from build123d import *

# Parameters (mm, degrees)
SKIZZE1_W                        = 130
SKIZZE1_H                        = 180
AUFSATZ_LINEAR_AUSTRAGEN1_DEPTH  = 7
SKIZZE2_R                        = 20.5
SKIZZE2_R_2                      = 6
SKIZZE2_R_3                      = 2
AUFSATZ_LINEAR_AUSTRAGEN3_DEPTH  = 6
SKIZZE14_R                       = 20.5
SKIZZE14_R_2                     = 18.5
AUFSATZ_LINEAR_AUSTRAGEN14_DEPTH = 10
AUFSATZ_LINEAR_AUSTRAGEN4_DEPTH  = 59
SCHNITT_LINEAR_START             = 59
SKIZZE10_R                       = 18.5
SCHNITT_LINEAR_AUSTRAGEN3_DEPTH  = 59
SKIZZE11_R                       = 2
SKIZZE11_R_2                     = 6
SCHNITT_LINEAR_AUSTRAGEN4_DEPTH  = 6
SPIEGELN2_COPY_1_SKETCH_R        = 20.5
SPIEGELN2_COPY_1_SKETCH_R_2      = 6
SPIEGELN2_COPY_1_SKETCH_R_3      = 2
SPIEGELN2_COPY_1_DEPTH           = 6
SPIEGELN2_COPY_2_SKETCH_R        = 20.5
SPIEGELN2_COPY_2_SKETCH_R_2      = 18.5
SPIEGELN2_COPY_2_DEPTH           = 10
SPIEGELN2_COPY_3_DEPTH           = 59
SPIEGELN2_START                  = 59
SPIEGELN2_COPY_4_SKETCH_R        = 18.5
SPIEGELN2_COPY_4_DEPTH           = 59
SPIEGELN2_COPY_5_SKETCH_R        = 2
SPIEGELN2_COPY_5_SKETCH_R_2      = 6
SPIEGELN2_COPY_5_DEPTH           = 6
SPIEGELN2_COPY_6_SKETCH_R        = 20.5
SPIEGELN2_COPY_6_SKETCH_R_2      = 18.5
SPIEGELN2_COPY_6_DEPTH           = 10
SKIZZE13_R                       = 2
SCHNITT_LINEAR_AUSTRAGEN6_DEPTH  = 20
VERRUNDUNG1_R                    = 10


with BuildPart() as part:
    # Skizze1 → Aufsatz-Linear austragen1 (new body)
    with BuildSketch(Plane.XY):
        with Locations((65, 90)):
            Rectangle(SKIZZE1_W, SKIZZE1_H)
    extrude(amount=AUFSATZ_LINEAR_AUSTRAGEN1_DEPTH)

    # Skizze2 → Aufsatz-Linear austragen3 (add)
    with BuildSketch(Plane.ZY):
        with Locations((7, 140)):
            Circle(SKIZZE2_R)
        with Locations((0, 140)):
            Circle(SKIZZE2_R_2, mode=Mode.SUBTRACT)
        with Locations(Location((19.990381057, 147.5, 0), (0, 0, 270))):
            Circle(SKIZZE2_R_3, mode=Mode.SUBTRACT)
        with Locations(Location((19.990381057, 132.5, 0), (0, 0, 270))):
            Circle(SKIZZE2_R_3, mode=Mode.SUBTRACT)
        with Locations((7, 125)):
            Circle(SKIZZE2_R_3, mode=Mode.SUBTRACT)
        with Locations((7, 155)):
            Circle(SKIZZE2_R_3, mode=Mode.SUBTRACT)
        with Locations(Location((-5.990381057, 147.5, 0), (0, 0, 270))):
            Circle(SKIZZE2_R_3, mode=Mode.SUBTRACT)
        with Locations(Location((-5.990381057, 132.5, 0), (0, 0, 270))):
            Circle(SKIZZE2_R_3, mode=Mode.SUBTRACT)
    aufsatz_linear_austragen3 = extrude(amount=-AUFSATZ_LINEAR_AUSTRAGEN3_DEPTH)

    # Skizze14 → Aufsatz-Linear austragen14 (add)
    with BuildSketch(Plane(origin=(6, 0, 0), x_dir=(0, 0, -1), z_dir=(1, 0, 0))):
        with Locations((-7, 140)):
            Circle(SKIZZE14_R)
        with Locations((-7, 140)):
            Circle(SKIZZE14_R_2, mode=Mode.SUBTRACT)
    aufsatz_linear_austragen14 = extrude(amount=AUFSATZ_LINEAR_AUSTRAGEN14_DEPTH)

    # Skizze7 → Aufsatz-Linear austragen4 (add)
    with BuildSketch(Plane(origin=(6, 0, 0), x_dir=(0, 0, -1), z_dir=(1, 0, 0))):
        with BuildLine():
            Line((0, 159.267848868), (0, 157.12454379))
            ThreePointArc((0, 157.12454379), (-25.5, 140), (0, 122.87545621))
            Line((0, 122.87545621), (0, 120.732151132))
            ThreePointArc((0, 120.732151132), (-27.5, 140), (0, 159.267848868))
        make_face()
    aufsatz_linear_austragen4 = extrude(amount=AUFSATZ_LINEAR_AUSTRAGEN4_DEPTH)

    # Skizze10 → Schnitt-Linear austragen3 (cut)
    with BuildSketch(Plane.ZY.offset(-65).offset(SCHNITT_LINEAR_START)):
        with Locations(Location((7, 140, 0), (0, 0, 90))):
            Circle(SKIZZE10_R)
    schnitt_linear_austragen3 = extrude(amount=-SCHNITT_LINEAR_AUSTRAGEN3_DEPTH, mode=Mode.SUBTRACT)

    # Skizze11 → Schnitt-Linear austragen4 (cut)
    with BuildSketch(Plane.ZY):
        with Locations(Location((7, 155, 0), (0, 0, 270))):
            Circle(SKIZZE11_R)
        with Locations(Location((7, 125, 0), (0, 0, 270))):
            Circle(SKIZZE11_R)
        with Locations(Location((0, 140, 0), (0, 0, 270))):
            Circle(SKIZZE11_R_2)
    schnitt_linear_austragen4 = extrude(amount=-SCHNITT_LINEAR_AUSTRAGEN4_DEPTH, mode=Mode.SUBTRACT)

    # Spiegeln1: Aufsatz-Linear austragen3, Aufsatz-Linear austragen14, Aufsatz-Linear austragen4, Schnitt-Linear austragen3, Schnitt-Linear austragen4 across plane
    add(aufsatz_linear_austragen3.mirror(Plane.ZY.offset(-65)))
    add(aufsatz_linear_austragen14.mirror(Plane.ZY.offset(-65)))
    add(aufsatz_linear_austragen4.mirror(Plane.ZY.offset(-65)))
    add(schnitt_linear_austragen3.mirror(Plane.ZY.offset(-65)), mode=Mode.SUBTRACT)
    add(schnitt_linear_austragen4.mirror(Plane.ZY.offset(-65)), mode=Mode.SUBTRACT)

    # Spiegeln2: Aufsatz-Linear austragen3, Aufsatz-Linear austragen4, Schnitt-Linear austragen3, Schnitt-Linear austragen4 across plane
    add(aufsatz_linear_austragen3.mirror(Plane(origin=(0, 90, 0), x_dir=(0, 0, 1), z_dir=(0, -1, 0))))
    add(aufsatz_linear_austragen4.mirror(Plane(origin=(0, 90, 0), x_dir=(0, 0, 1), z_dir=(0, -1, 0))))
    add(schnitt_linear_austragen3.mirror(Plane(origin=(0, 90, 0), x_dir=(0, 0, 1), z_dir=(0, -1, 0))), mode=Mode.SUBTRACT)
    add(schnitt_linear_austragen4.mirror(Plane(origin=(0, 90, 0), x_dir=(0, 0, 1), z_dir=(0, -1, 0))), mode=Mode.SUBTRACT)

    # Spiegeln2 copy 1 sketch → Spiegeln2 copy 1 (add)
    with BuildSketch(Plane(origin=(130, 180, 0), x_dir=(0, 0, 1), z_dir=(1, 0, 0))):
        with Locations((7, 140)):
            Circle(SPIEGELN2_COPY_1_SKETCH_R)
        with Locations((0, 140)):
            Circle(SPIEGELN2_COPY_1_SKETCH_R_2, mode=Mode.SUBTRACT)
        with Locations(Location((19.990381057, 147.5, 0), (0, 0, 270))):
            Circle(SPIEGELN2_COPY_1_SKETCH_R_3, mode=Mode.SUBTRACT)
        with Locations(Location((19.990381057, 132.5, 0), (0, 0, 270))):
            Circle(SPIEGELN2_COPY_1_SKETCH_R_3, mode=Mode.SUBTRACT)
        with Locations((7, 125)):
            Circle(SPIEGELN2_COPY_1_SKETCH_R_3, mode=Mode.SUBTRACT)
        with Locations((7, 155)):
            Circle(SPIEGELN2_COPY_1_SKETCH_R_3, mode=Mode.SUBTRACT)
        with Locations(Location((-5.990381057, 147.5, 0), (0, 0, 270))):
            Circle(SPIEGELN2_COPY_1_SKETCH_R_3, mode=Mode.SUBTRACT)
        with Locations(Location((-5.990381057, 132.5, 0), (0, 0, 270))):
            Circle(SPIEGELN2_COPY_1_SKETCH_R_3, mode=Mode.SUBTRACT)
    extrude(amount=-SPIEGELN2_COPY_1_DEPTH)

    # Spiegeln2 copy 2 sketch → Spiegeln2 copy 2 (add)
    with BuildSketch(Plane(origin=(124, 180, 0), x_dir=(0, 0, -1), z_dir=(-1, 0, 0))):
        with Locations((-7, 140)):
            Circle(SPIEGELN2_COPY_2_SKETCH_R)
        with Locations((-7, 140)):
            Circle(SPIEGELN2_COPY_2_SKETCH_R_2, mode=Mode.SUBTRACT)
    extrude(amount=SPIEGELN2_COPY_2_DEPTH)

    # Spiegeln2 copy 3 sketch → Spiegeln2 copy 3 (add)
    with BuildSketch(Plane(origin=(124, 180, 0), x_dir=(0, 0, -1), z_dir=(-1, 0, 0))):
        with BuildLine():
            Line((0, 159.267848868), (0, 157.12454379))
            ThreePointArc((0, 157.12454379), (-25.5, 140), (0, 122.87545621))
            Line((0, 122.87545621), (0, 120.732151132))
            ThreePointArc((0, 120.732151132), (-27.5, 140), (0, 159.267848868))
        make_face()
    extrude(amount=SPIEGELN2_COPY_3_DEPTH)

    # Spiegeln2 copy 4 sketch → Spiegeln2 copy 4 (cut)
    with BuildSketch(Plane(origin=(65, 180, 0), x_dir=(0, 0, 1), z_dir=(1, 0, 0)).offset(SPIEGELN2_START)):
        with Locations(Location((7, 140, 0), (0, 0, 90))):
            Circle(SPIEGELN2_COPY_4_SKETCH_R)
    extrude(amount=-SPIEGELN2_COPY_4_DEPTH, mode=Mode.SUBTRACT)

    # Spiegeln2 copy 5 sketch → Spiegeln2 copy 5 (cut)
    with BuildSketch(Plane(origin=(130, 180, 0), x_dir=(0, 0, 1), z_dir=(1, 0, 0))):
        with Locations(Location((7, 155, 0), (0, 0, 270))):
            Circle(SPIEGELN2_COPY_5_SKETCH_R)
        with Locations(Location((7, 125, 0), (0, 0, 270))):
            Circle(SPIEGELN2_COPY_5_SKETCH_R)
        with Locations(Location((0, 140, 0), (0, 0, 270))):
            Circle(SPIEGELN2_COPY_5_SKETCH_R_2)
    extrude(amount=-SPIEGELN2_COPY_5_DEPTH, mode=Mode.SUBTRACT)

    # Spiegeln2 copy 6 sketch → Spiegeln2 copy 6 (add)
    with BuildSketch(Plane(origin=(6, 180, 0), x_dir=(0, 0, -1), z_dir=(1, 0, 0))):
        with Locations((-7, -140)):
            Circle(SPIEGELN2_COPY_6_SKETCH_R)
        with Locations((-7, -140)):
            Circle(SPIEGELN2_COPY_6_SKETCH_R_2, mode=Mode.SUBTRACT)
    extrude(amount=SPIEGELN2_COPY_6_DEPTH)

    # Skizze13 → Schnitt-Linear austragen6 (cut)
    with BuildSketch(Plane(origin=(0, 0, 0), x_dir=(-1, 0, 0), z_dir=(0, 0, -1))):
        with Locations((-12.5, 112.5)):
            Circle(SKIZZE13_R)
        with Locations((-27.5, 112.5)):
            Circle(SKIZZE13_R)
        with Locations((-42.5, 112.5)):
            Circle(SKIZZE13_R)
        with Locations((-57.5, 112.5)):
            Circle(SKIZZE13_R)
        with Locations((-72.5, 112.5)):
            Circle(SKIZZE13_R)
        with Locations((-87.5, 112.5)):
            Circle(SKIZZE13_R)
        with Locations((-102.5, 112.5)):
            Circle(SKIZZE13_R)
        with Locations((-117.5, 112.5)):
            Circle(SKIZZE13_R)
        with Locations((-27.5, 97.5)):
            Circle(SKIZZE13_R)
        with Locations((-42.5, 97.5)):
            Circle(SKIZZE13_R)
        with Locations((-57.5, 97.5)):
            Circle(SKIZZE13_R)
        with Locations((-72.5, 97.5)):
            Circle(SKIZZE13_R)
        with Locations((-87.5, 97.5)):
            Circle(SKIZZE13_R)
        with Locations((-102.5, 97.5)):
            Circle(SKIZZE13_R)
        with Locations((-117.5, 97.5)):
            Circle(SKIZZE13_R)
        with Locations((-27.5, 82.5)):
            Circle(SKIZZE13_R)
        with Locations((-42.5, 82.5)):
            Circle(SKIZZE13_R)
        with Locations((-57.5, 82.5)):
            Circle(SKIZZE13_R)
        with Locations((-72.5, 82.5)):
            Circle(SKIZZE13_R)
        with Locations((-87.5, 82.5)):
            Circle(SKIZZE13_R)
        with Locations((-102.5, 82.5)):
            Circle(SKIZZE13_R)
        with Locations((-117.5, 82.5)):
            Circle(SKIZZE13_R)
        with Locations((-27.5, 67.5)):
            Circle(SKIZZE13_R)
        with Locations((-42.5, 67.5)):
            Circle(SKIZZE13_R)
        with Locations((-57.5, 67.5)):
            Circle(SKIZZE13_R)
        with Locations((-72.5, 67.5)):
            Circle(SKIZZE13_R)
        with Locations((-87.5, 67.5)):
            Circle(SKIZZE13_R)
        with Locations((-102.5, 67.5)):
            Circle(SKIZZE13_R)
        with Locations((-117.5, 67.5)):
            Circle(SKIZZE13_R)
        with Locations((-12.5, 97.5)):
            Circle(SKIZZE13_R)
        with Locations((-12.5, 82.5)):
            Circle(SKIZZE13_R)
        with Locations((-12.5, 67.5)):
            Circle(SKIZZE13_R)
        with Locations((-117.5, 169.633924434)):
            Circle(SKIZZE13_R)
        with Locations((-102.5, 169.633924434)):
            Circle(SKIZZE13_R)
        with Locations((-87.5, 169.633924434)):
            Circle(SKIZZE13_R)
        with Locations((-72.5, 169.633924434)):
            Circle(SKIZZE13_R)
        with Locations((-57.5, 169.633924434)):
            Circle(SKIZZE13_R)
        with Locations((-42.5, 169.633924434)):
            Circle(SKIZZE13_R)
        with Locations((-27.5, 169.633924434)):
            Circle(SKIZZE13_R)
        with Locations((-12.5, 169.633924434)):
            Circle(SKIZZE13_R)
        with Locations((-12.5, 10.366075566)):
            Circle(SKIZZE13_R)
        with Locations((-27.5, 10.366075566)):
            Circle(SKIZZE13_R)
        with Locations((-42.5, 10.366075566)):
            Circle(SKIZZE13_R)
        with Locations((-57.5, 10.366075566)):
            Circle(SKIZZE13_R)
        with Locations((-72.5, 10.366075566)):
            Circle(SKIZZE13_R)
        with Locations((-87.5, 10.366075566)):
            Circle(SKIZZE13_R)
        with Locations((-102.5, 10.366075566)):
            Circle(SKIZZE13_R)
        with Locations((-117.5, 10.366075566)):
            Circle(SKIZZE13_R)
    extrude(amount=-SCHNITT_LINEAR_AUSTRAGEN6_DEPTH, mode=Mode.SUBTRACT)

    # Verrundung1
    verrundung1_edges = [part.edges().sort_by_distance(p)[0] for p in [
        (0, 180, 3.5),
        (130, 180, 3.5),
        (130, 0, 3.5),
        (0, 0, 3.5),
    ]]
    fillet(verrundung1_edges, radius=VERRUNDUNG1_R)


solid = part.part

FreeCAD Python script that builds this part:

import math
import FreeCAD as App
import Part
import Sketcher
Q = App.Units.Quantity


def edges_at(feature, points):
    """Names of the edges that pass closest to the given points."""
    edges = feature.Shape.Edges
    near = lambda p: min(range(len(edges)), key=lambda i: edges[i].distToShape(Part.Vertex(*p))[0])
    return sorted({f"Edge{near(p) + 1}" for p in points})

doc = App.newDocument("Part")
params = doc.addObject("Spreadsheet::Sheet", "Params")
for row, (alias, value) in enumerate([
    ("sketch1_width", "130 mm"),
    ("sketch1_height", "180 mm"),
    ("pad1_length", "7 mm"),
    ("sketch2_diameter", "41 mm"),
    ("sketch2_diameter2", "4 mm"),
    ("sketch2_diameter3", "12 mm"),
    ("pad2_length", "6 mm"),
    ("sketch3_diameter", "41 mm"),
    ("sketch3_diameter2", "37 mm"),
    ("pad3_length", "10 mm"),
    ("sketch4_radius", "20.5 mm"),
    ("sketch4_radius2", "18.5 mm"),
    ("pad4_length", "59 mm"),
    ("sketch5_diameter", "37 mm"),
    ("pocket1_length", "59 mm"),
    ("sketch6_diameter", "4 mm"),
    ("sketch6_diameter2", "12 mm"),
    ("pocket2_length", "6 mm"),
    ("sketch7_diameter", "41 mm"),
    ("sketch7_diameter2", "4 mm"),
    ("sketch7_diameter3", "12 mm"),
    ("pad5_length", "6 mm"),
    ("sketch8_diameter", "41 mm"),
    ("sketch8_diameter2", "37 mm"),
    ("pad6_length", "10 mm"),
    ("sketch9_radius", "20.5 mm"),
    ("sketch9_radius2", "18.5 mm"),
    ("pad7_length", "59 mm"),
    ("sketch10_diameter", "37 mm"),
    ("pocket3_length", "59 mm"),
    ("sketch11_diameter", "4 mm"),
    ("sketch11_diameter2", "12 mm"),
    ("pocket4_length", "6 mm"),
    ("sketch12_diameter", "41 mm"),
    ("sketch12_diameter2", "37 mm"),
    ("pad8_length", "10 mm"),
    ("sketch13_diameter", "4 mm"),
    ("pocket5_length", "20 mm"),
    ("fillet_radius", "10 mm"),
], start=1):
    params.set(f"A{row}", alias)
    params.set(f"B{row}", "=" + value)
    params.setAlias(f"B{row}", alias)

body = doc.addObject("PartDesign::Body", "Body")

# Sketch on XY plane
sketch1 = body.newObject("Sketcher::SketchObject", "Sketch")
sketch1.AttachmentSupport = (doc.getObject("XY_Plane"), [""])
sketch1.MapMode = "FlatFace"
sketch1.addGeometry([
    Part.LineSegment(App.Vector(0, 180, 0), App.Vector(0, 0, 0)),
    Part.LineSegment(App.Vector(0, 0, 0), App.Vector(130, 0, 0)),
    Part.LineSegment(App.Vector(130, 0, 0), App.Vector(130, 180, 0)),
    Part.LineSegment(App.Vector(130, 180, 0), App.Vector(0, 180, 0)),
], False)
sketch1.addConstraint([
    Sketcher.Constraint("Coincident", 0, 2, 1, 1),
    Sketcher.Constraint("Coincident", 1, 2, 2, 1),
    Sketcher.Constraint("Coincident", 2, 2, 3, 1),
    Sketcher.Constraint("Coincident", 3, 2, 0, 1),
    Sketcher.Constraint("Vertical", 0),
    Sketcher.Constraint("Horizontal", 1),
    Sketcher.Constraint("Vertical", 2),
    Sketcher.Constraint("Horizontal", 3),
    Sketcher.Constraint("Coincident", 0, 2, -1, 1),
    Sketcher.Constraint("DistanceX", 1, 1, 1, 2, Q("130 mm")),
    Sketcher.Constraint("DistanceY", 0, 2, 0, 1, Q("180 mm")),
])
sketch1.setExpression("Constraints[9]", "Params.sketch1_width")
sketch1.setExpression("Constraints[10]", "Params.sketch1_height")
pad1 = body.newObject("PartDesign::Pad", "Pad")
pad1.Profile = sketch1
pad1.setExpression("Length", "Params.pad1_length")

# Sketch on YZ plane
sketch2 = body.newObject("Sketcher::SketchObject", "Sketch001")
sketch2.AttachmentSupport = (doc.getObject("YZ_Plane"), [""])
sketch2.MapMode = "FlatFace"
sketch2.addGeometry([
    Part.Circle(App.Vector(140, 7, 0), App.Vector(0, 0, 1), 20.5),  # 0
    Part.Circle(App.Vector(132.5, -6, 0), App.Vector(0, 0, 1), 2),  # 1
    Part.Circle(App.Vector(125, 7, 0), App.Vector(0, 0, 1), 2),  # 2
    Part.Circle(App.Vector(132.5, 20, 0), App.Vector(0, 0, 1), 2),  # 3
    Part.Circle(App.Vector(147.5, -6, 0), App.Vector(0, 0, 1), 2),  # 4
    Part.Circle(App.Vector(140, 0, 0), App.Vector(0, 0, 1), 6),  # 5
    Part.Circle(App.Vector(147.5, 20, 0), App.Vector(0, 0, 1), 2),  # 6
    Part.Circle(App.Vector(155, 7, 0), App.Vector(0, 0, 1), 2),  # 7
], False)
sketch2.addConstraint([
    Sketcher.Constraint("Equal", 1, 2),
    Sketcher.Constraint("Equal", 2, 3),
    Sketcher.Constraint("Equal", 3, 4),
    Sketcher.Constraint("Equal", 4, 6),
    Sketcher.Constraint("Equal", 6, 7),
    Sketcher.Constraint("PointOnObject", 5, 3, -1),
    Sketcher.Constraint("Horizontal", 0, 3, 2, 3),
    Sketcher.Constraint("Horizontal", 1, 3, 4, 3),
    Sketcher.Constraint("Horizontal", 3, 3, 6, 3),
    Sketcher.Constraint("Horizontal", 2, 3, 7, 3),
    Sketcher.Constraint("Vertical", 1, 3, 3, 3),
    Sketcher.Constraint("Vertical", 0, 3, 5, 3),
    Sketcher.Constraint("Vertical", 4, 3, 6, 3),
    Sketcher.Constraint("Diameter", 0, Q("41 mm")),
    Sketcher.Constraint("Diameter", 1, Q("4 mm")),
    Sketcher.Constraint("Diameter", 5, Q("12 mm")),
    Sketcher.Constraint("DistanceX", -1, 1, 0, 3, Q("140 mm")),
    Sketcher.Constraint("DistanceY", -1, 1, 0, 3, Q("7 mm")),
    Sketcher.Constraint("DistanceX", -1, 1, 2, 3, Q("125 mm")),
    Sketcher.Constraint("DistanceX", -1, 1, 7, 3, Q("155 mm")),
    Sketcher.Constraint("DistanceX", 1, 3, 4, 3, Q("15 mm")),
    Sketcher.Constraint("DistanceX", -1, 1, 1, 3, Q("132.5 mm")),
    Sketcher.Constraint("DistanceY", 1, 3, -1, 1, Q("5.990381 mm")),
    Sketcher.Constraint("DistanceY", -1, 1, 3, 3, Q("19.990381 mm")),
])
sketch2.setExpression("Constraints[13]", "Params.sketch2_diameter")
sketch2.setExpression("Constraints[14]", "Params.sketch2_diameter2")
sketch2.setExpression("Constraints[15]", "Params.sketch2_diameter3")
pad2 = body.newObject("PartDesign::Pad", "Pad001")
pad2.Profile = sketch2
pad2.setExpression("Length", "Params.pad2_length")

# Sketch on YZ plane
sketch3 = body.newObject("Sketcher::SketchObject", "Sketch002")
sketch3.AttachmentSupport = (doc.getObject("YZ_Plane"), [""])
sketch3.MapMode = "FlatFace"
sketch3.AttachmentOffset = App.Placement(App.Vector(0, 0, 6), App.Rotation())
sketch3.addGeometry([
    Part.Circle(App.Vector(140, 7, 0), App.Vector(0, 0, 1), 20),
    Part.Circle(App.Vector(140, 7, 0), App.Vector(0, 0, 1), 18),
], False)
sketch3.addConstraint([
    Sketcher.Constraint("Coincident", 1, 3, 0, 3),
    Sketcher.Constraint("Diameter", 0, Q("41 mm")),
    Sketcher.Constraint("Diameter", 1, Q("37 mm")),
    Sketcher.Constraint("DistanceX", -1, 1, 0, 3, Q("140 mm")),
    Sketcher.Constraint("DistanceY", -1, 1, 0, 3, Q("7 mm")),
])
sketch3.setExpression("Constraints[1]", "Params.sketch3_diameter")
sketch3.setExpression("Constraints[2]", "Params.sketch3_diameter2")
pad3 = body.newObject("PartDesign::Pad", "Pad002")
pad3.Profile = sketch3
pad3.setExpression("Length", "Params.pad3_length")

# Sketch on YZ plane
sketch4 = body.newObject("Sketcher::SketchObject", "Sketch003")
sketch4.AttachmentSupport = (doc.getObject("YZ_Plane"), [""])
sketch4.MapMode = "FlatFace"
sketch4.AttachmentOffset = App.Placement(App.Vector(0, 0, 6), App.Rotation())
sketch4.addGeometry([
    Part.LineSegment(App.Vector(157.1, 0, 0), App.Vector(159.3, 0, 0)),
    Part.ArcOfCircle(Part.Circle(App.Vector(140, 7, 0), App.Vector(0, 0, 1), 20.5), math.radians(-20), math.radians(200)),
    Part.LineSegment(App.Vector(120.7, 0, 0), App.Vector(122.9, 0, 0)),
    Part.ArcOfCircle(Part.Circle(App.Vector(140, 7, 0), App.Vector(0, 0, 1), 18.5), math.radians(-22), math.radians(202)),
], False)
sketch4.addConstraint([
    Sketcher.Constraint("Coincident", 0, 2, 1, 1),
    Sketcher.Constraint("Coincident", 1, 2, 2, 1),
    Sketcher.Constraint("Coincident", 2, 2, 3, 2),
    Sketcher.Constraint("Coincident", 3, 1, 0, 1),
    Sketcher.Constraint("Horizontal", 0),
    Sketcher.Constraint("Horizontal", 2),
    Sketcher.Constraint("Coincident", 3, 3, 1, 3),
    Sketcher.Constraint("PointOnObject", 0, 2, -1),
    Sketcher.Constraint("PointOnObject", 1, 2, -1),
    Sketcher.Constraint("Radius", 1, Q("20.5 mm")),
    Sketcher.Constraint("Radius", 3, Q("18.5 mm")),
    Sketcher.Constraint("DistanceX", -1, 1, 1, 3, Q("140 mm")),
    Sketcher.Constraint("DistanceY", -1, 1, 1, 3, Q("7 mm")),
])
sketch4.setExpression("Constraints[9]", "Params.sketch4_radius")
sketch4.setExpression("Constraints[10]", "Params.sketch4_radius2")
pad4 = body.newObject("PartDesign::Pad", "Pad003")
pad4.Profile = sketch4
pad4.setExpression("Length", "Params.pad4_length")

# Sketch on YZ plane
sketch5 = body.newObject("Sketcher::SketchObject", "Sketch004")
sketch5.AttachmentSupport = (doc.getObject("YZ_Plane"), [""])
sketch5.MapMode = "FlatFace"
sketch5.AttachmentOffset = App.Placement(App.Vector(0, 0, 6), App.Rotation())
sketch5.addGeometry(Part.Circle(App.Vector(140, 7, 0), App.Vector(0, 0, 1), 18), False)
sketch5.addConstraint([
    Sketcher.Constraint("Diameter", 0, Q("37 mm")),
    Sketcher.Constraint("DistanceX", -1, 1, 0, 3, Q("140 mm")),
    Sketcher.Constraint("DistanceY", -1, 1, 0, 3, Q("7 mm")),
])
sketch5.setExpression("Constraints[0]", "Params.sketch5_diameter")
pocket1 = body.newObject("PartDesign::Pocket", "Pocket")
pocket1.Profile = sketch5
pocket1.setExpression("Length", "Params.pocket1_length")
pocket1.Reversed = True

# Sketch on YZ plane
sketch6 = body.newObject("Sketcher::SketchObject", "Sketch005")
sketch6.AttachmentSupport = (doc.getObject("YZ_Plane"), [""])
sketch6.MapMode = "FlatFace"
sketch6.addGeometry([
    Part.Circle(App.Vector(155, 7, 0), App.Vector(0, 0, 1), 2),
    Part.Circle(App.Vector(125, 7, 0), App.Vector(0, 0, 1), 2),
    Part.Circle(App.Vector(140, 0, 0), App.Vector(0, 0, 1), 6),
], False)
sketch6.addConstraint([
    Sketcher.Constraint("Equal", 0, 1),
    Sketcher.Constraint("PointOnObject", 2, 3, -1),
    Sketcher.Constraint("Horizontal", 0, 3, 1, 3),
    Sketcher.Constraint("Diameter", 0, Q("4 mm")),
    Sketcher.Constraint("Diameter", 2, Q("12 mm")),
    Sketcher.Constraint("DistanceX", -1, 1, 0, 3, Q("155 mm")),
    Sketcher.Constraint("DistanceY", -1, 1, 0, 3, Q("7 mm")),
    Sketcher.Constraint("DistanceX", -1, 1, 1, 3, Q("125 mm")),
    Sketcher.Constraint("DistanceX", -1, 1, 2, 3, Q("140 mm")),
])
sketch6.setExpression("Constraints[3]", "Params.sketch6_diameter")
sketch6.setExpression("Constraints[4]", "Params.sketch6_diameter2")
pocket2 = body.newObject("PartDesign::Pocket", "Pocket001")
pocket2.Profile = sketch6
pocket2.setExpression("Length", "Params.pocket2_length")
pocket2.Reversed = True
doc.recompute()

datumplane = body.newObject("PartDesign::Plane", "DatumPlane")
datumplane.AttachmentSupport = (doc.getObject("YZ_Plane"), [""])
datumplane.MapMode = "FlatFace"
datumplane.AttachmentOffset = App.Placement(App.Vector(0, 0, 65), App.Rotation())
mirrored = body.newObject("PartDesign::Mirrored", "Mirrored")
mirrored.Originals = [pad2, pad3, pad4, pocket1, pocket2]
mirrored.MirrorPlane = (datumplane, [""])
body.Tip = mirrored
doc.recompute()

datumplane2 = body.newObject("PartDesign::Plane", "DatumPlane001")
datumplane2.AttachmentSupport = (doc.getObject("XZ_Plane"), [""])
datumplane2.MapMode = "FlatFace"
datumplane2.AttachmentOffset = App.Placement(App.Vector(0, 0, -90), App.Rotation())
mirrored2 = body.newObject("PartDesign::Mirrored", "Mirrored001")
mirrored2.Originals = [pad2, pad4, pocket1, pocket2]
mirrored2.MirrorPlane = (datumplane2, [""])
body.Tip = mirrored2

# Sketch on YZ plane
sketch7 = body.newObject("Sketcher::SketchObject", "Sketch006")
sketch7.AttachmentSupport = (doc.getObject("YZ_Plane"), [""])
sketch7.MapMode = "FlatFace"
sketch7.AttachmentOffset = App.Placement(App.Vector(0, 0, 130), App.Rotation())
sketch7.addGeometry([
    Part.Circle(App.Vector(40, 7, 0), App.Vector(0, 0, 1), 20.5),  # 0
    Part.Circle(App.Vector(47.5, -6, 0), App.Vector(0, 0, 1), 2),  # 1
    Part.Circle(App.Vector(55, 7, 0), App.Vector(0, 0, 1), 2),  # 2
    Part.Circle(App.Vector(47.5, 20, 0), App.Vector(0, 0, 1), 2),  # 3
    Part.Circle(App.Vector(32.5, -6, 0), App.Vector(0, 0, 1), 2),  # 4
    Part.Circle(App.Vector(40, 0, 0), App.Vector(0, 0, 1), 6),  # 5
    Part.Circle(App.Vector(32.5, 20, 0), App.Vector(0, 0, 1), 2),  # 6
    Part.Circle(App.Vector(25, 7, 0), App.Vector(0, 0, 1), 2),  # 7
], False)
sketch7.addConstraint([
    Sketcher.Constraint("Equal", 1, 2),
    Sketcher.Constraint("Equal", 2, 3),
    Sketcher.Constraint("Equal", 3, 4),
    Sketcher.Constraint("Equal", 4, 6),
    Sketcher.Constraint("Equal", 6, 7),
    Sketcher.Constraint("PointOnObject", 5, 3, -1),
    Sketcher.Constraint("Horizontal", 0, 3, 2, 3),
    Sketcher.Constraint("Horizontal", 1, 3, 4, 3),
    Sketcher.Constraint("Horizontal", 3, 3, 6, 3),
    Sketcher.Constraint("Horizontal", 2, 3, 7, 3),
    Sketcher.Constraint("Vertical", 1, 3, 3, 3),
    Sketcher.Constraint("Vertical", 0, 3, 5, 3),
    Sketcher.Constraint("Vertical", 4, 3, 6, 3),
    Sketcher.Constraint("Diameter", 0, Q("41 mm")),
    Sketcher.Constraint("Diameter", 1, Q("4 mm")),
    Sketcher.Constraint("Diameter", 5, Q("12 mm")),
    Sketcher.Constraint("DistanceX", -1, 1, 0, 3, Q("40 mm")),
    Sketcher.Constraint("DistanceY", -1, 1, 0, 3, Q("7 mm")),
    Sketcher.Constraint("DistanceX", -1, 1, 2, 3, Q("55 mm")),
    Sketcher.Constraint("DistanceX", -1, 1, 7, 3, Q("25 mm")),
    Sketcher.Constraint("DistanceX", 4, 3, 1, 3, Q("15 mm")),
    Sketcher.Constraint("DistanceX", -1, 1, 1, 3, Q("47.5 mm")),
    Sketcher.Constraint("DistanceY", 1, 3, -1, 1, Q("5.990381 mm")),
    Sketcher.Constraint("DistanceY", -1, 1, 3, 3, Q("19.990381 mm")),
])
sketch7.setExpression("Constraints[13]", "Params.sketch7_diameter")
sketch7.setExpression("Constraints[14]", "Params.sketch7_diameter2")
sketch7.setExpression("Constraints[15]", "Params.sketch7_diameter3")
pad5 = body.newObject("PartDesign::Pad", "Pad004")
pad5.Profile = sketch7
pad5.setExpression("Length", "Params.pad5_length")
pad5.Reversed = True

# Sketch on YZ plane
sketch8 = body.newObject("Sketcher::SketchObject", "Sketch007")
sketch8.AttachmentSupport = (doc.getObject("YZ_Plane"), [""])
sketch8.MapMode = "FlatFace"
sketch8.AttachmentOffset = App.Placement(App.Vector(0, 0, 124), App.Rotation())
sketch8.addGeometry([
    Part.Circle(App.Vector(40, 7, 0), App.Vector(0, 0, 1), 20),
    Part.Circle(App.Vector(40, 7, 0), App.Vector(0, 0, 1), 18),
], False)
sketch8.addConstraint([
    Sketcher.Constraint("Coincident", 1, 3, 0, 3),
    Sketcher.Constraint("Diameter", 0, Q("41 mm")),
    Sketcher.Constraint("Diameter", 1, Q("37 mm")),
    Sketcher.Constraint("DistanceX", -1, 1, 0, 3, Q("40 mm")),
    Sketcher.Constraint("DistanceY", -1, 1, 0, 3, Q("7 mm")),
])
sketch8.setExpression("Constraints[1]", "Params.sketch8_diameter")
sketch8.setExpression("Constraints[2]", "Params.sketch8_diameter2")
pad6 = body.newObject("PartDesign::Pad", "Pad005")
pad6.Profile = sketch8
pad6.setExpression("Length", "Params.pad6_length")
pad6.Reversed = True

# Sketch on YZ plane
sketch9 = body.newObject("Sketcher::SketchObject", "Sketch008")
sketch9.AttachmentSupport = (doc.getObject("YZ_Plane"), [""])
sketch9.MapMode = "FlatFace"
sketch9.AttachmentOffset = App.Placement(App.Vector(0, 0, 124), App.Rotation())
sketch9.addGeometry([
    Part.LineSegment(App.Vector(22.9, 0, 0), App.Vector(20.7, 0, 0)),
    Part.ArcOfCircle(Part.Circle(App.Vector(40, 7, 0), App.Vector(0, 0, 1), 20.5), math.radians(-20), math.radians(200)),
    Part.LineSegment(App.Vector(59.3, 0, 0), App.Vector(57.1, 0, 0)),
    Part.ArcOfCircle(Part.Circle(App.Vector(40, 7, 0), App.Vector(0, 0, 1), 18.5), math.radians(-22), math.radians(202)),
], False)
sketch9.addConstraint([
    Sketcher.Constraint("Coincident", 0, 2, 1, 2),
    Sketcher.Constraint("Coincident", 1, 1, 2, 1),
    Sketcher.Constraint("Coincident", 2, 2, 3, 1),
    Sketcher.Constraint("Coincident", 3, 2, 0, 1),
    Sketcher.Constraint("Horizontal", 0),
    Sketcher.Constraint("Horizontal", 2),
    Sketcher.Constraint("Coincident", 3, 3, 1, 3),
    Sketcher.Constraint("PointOnObject", 0, 2, -1),
    Sketcher.Constraint("PointOnObject", 1, 1, -1),
    Sketcher.Constraint("Radius", 1, Q("20.5 mm")),
    Sketcher.Constraint("Radius", 3, Q("18.5 mm")),
    Sketcher.Constraint("DistanceX", -1, 1, 1, 3, Q("40 mm")),
    Sketcher.Constraint("DistanceY", -1, 1, 1, 3, Q("7 mm")),
])
sketch9.setExpression("Constraints[9]", "Params.sketch9_radius")
sketch9.setExpression("Constraints[10]", "Params.sketch9_radius2")
pad7 = body.newObject("PartDesign::Pad", "Pad006")
pad7.Profile = sketch9
pad7.setExpression("Length", "Params.pad7_length")
pad7.Reversed = True

# Sketch on YZ plane
sketch10 = body.newObject("Sketcher::SketchObject", "Sketch009")
sketch10.AttachmentSupport = (doc.getObject("YZ_Plane"), [""])
sketch10.MapMode = "FlatFace"
sketch10.AttachmentOffset = App.Placement(App.Vector(0, 0, 124), App.Rotation())
sketch10.addGeometry(Part.Circle(App.Vector(40, 7, 0), App.Vector(0, 0, 1), 18), False)
sketch10.addConstraint([
    Sketcher.Constraint("Diameter", 0, Q("37 mm")),
    Sketcher.Constraint("DistanceX", -1, 1, 0, 3, Q("40 mm")),
    Sketcher.Constraint("DistanceY", -1, 1, 0, 3, Q("7 mm")),
])
sketch10.setExpression("Constraints[0]", "Params.sketch10_diameter")
pocket3 = body.newObject("PartDesign::Pocket", "Pocket002")
pocket3.Profile = sketch10
pocket3.setExpression("Length", "Params.pocket3_length")

# Sketch on YZ plane
sketch11 = body.newObject("Sketcher::SketchObject", "Sketch010")
sketch11.AttachmentSupport = (doc.getObject("YZ_Plane"), [""])
sketch11.MapMode = "FlatFace"
sketch11.AttachmentOffset = App.Placement(App.Vector(0, 0, 130), App.Rotation())
sketch11.addGeometry([
    Part.Circle(App.Vector(25, 7, 0), App.Vector(0, 0, 1), 2),
    Part.Circle(App.Vector(55, 7, 0), App.Vector(0, 0, 1), 2),
    Part.Circle(App.Vector(40, 0, 0), App.Vector(0, 0, 1), 6),
], False)
sketch11.addConstraint([
    Sketcher.Constraint("Equal", 0, 1),
    Sketcher.Constraint("PointOnObject", 2, 3, -1),
    Sketcher.Constraint("Horizontal", 0, 3, 1, 3),
    Sketcher.Constraint("Diameter", 0, Q("4 mm")),
    Sketcher.Constraint("Diameter", 2, Q("12 mm")),
    Sketcher.Constraint("DistanceX", -1, 1, 0, 3, Q("25 mm")),
    Sketcher.Constraint("DistanceY", -1, 1, 0, 3, Q("7 mm")),
    Sketcher.Constraint("DistanceX", -1, 1, 1, 3, Q("55 mm")),
    Sketcher.Constraint("DistanceX", -1, 1, 2, 3, Q("40 mm")),
])
sketch11.setExpression("Constraints[3]", "Params.sketch11_diameter")
sketch11.setExpression("Constraints[4]", "Params.sketch11_diameter2")
pocket4 = body.newObject("PartDesign::Pocket", "Pocket003")
pocket4.Profile = sketch11
pocket4.setExpression("Length", "Params.pocket4_length")

# Sketch on YZ plane
sketch12 = body.newObject("Sketcher::SketchObject", "Sketch011")
sketch12.AttachmentSupport = (doc.getObject("YZ_Plane"), [""])
sketch12.MapMode = "FlatFace"
sketch12.AttachmentOffset = App.Placement(App.Vector(0, 0, 6), App.Rotation())
sketch12.addGeometry([
    Part.Circle(App.Vector(40, 7, 0), App.Vector(0, 0, 1), 20),
    Part.Circle(App.Vector(40, 7, 0), App.Vector(0, 0, 1), 18),
], False)
sketch12.addConstraint([
    Sketcher.Constraint("Coincident", 1, 3, 0, 3),
    Sketcher.Constraint("Diameter", 0, Q("41 mm")),
    Sketcher.Constraint("Diameter", 1, Q("37 mm")),
    Sketcher.Constraint("DistanceX", -1, 1, 0, 3, Q("40 mm")),
    Sketcher.Constraint("DistanceY", -1, 1, 0, 3, Q("7 mm")),
])
sketch12.setExpression("Constraints[1]", "Params.sketch12_diameter")
sketch12.setExpression("Constraints[2]", "Params.sketch12_diameter2")
pad8 = body.newObject("PartDesign::Pad", "Pad007")
pad8.Profile = sketch12
pad8.setExpression("Length", "Params.pad8_length")

# Sketch on XY plane
sketch13 = body.newObject("Sketcher::SketchObject", "Sketch012")
sketch13.AttachmentSupport = (doc.getObject("XY_Plane"), [""])
sketch13.MapMode = "FlatFace"
sketch13.addGeometry([
    Part.Circle(App.Vector(12.5, 112.5, 0), App.Vector(0, 0, 1), 2),  # 0
    Part.Circle(App.Vector(27.5, 112.5, 0), App.Vector(0, 0, 1), 2),  # 1
    Part.Circle(App.Vector(42.5, 112.5, 0), App.Vector(0, 0, 1), 2),  # 2
    Part.Circle(App.Vector(57.5, 112.5, 0), App.Vector(0, 0, 1), 2),  # 3
    Part.Circle(App.Vector(72.5, 112.5, 0), App.Vector(0, 0, 1), 2),  # 4
    Part.Circle(App.Vector(87.5, 112.5, 0), App.Vector(0, 0, 1), 2),  # 5
    Part.Circle(App.Vector(102.5, 112.5, 0), App.Vector(0, 0, 1), 2),  # 6
    Part.Circle(App.Vector(117.5, 112.5, 0), App.Vector(0, 0, 1), 2),  # 7
    Part.Circle(App.Vector(27.5, 97.5, 0), App.Vector(0, 0, 1), 2),  # 8
    Part.Circle(App.Vector(42.5, 97.5, 0), App.Vector(0, 0, 1), 2),  # 9
    Part.Circle(App.Vector(57.5, 97.5, 0), App.Vector(0, 0, 1), 2),  # 10
    Part.Circle(App.Vector(72.5, 97.5, 0), App.Vector(0, 0, 1), 2),  # 11
    Part.Circle(App.Vector(87.5, 97.5, 0), App.Vector(0, 0, 1), 2),  # 12
    Part.Circle(App.Vector(102.5, 97.5, 0), App.Vector(0, 0, 1), 2),  # 13
    Part.Circle(App.Vector(117.5, 97.5, 0), App.Vector(0, 0, 1), 2),  # 14
    Part.Circle(App.Vector(27.5, 82.5, 0), App.Vector(0, 0, 1), 2),  # 15
    Part.Circle(App.Vector(42.5, 82.5, 0), App.Vector(0, 0, 1), 2),  # 16
    Part.Circle(App.Vector(57.5, 82.5, 0), App.Vector(0, 0, 1), 2),  # 17
    Part.Circle(App.Vector(72.5, 82.5, 0), App.Vector(0, 0, 1), 2),  # 18
    Part.Circle(App.Vector(87.5, 82.5, 0), App.Vector(0, 0, 1), 2),  # 19
    Part.Circle(App.Vector(102.5, 82.5, 0), App.Vector(0, 0, 1), 2),  # 20
    Part.Circle(App.Vector(117.5, 82.5, 0), App.Vector(0, 0, 1), 2),  # 21
    Part.Circle(App.Vector(27.5, 67.5, 0), App.Vector(0, 0, 1), 2),  # 22
    Part.Circle(App.Vector(42.5, 67.5, 0), App.Vector(0, 0, 1), 2),  # 23
    Part.Circle(App.Vector(57.5, 67.5, 0), App.Vector(0, 0, 1), 2),  # 24
    Part.Circle(App.Vector(72.5, 67.5, 0), App.Vector(0, 0, 1), 2),  # 25
    Part.Circle(App.Vector(87.5, 67.5, 0), App.Vector(0, 0, 1), 2),  # 26
    Part.Circle(App.Vector(102.5, 67.5, 0), App.Vector(0, 0, 1), 2),  # 27
    Part.Circle(App.Vector(117.5, 67.5, 0), App.Vector(0, 0, 1), 2),  # 28
    Part.Circle(App.Vector(12.5, 97.5, 0), App.Vector(0, 0, 1), 2),  # 29
    Part.Circle(App.Vector(12.5, 82.5, 0), App.Vector(0, 0, 1), 2),  # 30
    Part.Circle(App.Vector(12.5, 67.5, 0), App.Vector(0, 0, 1), 2),  # 31
    Part.Circle(App.Vector(117.5, 169.6, 0), App.Vector(0, 0, 1), 2),  # 32
    Part.Circle(App.Vector(102.5, 169.6, 0), App.Vector(0, 0, 1), 2),  # 33
    Part.Circle(App.Vector(87.5, 169.6, 0), App.Vector(0, 0, 1), 2),  # 34
    Part.Circle(App.Vector(72.5, 169.6, 0), App.Vector(0, 0, 1), 2),  # 35
    Part.Circle(App.Vector(57.5, 169.6, 0), App.Vector(0, 0, 1), 2),  # 36
    Part.Circle(App.Vector(42.5, 169.6, 0), App.Vector(0, 0, 1), 2),  # 37
    Part.Circle(App.Vector(27.5, 169.6, 0), App.Vector(0, 0, 1), 2),  # 38
    Part.Circle(App.Vector(12.5, 169.6, 0), App.Vector(0, 0, 1), 2),  # 39
    Part.Circle(App.Vector(12.5, 10.4, 0), App.Vector(0, 0, 1), 2),  # 40
    Part.Circle(App.Vector(27.5, 10.4, 0), App.Vector(0, 0, 1), 2),  # 41
    Part.Circle(App.Vector(42.5, 10.4, 0), App.Vector(0, 0, 1), 2),  # 42
    Part.Circle(App.Vector(57.5, 10.4, 0), App.Vector(0, 0, 1), 2),  # 43
    Part.Circle(App.Vector(72.5, 10.4, 0), App.Vector(0, 0, 1), 2),  # 44
    Part.Circle(App.Vector(87.5, 10.4, 0), App.Vector(0, 0, 1), 2),  # 45
    Part.Circle(App.Vector(102.5, 10.4, 0), App.Vector(0, 0, 1), 2),  # 46
    Part.Circle(App.Vector(117.5, 10.4, 0), App.Vector(0, 0, 1), 2),  # 47
], False)
sketch13.addConstraint([
    Sketcher.Constraint("Equal", 0, 1),
    Sketcher.Constraint("Equal", 1, 2),
    Sketcher.Constraint("Equal", 2, 3),
    Sketcher.Constraint("Equal", 3, 4),
    Sketcher.Constraint("Equal", 4, 5),
    Sketcher.Constraint("Equal", 5, 6),
    Sketcher.Constraint("Equal", 6, 7),
    Sketcher.Constraint("Equal", 7, 8),
    Sketcher.Constraint("Equal", 8, 9),
    Sketcher.Constraint("Equal", 9, 10),
    Sketcher.Constraint("Equal", 10, 11),
    Sketcher.Constraint("Equal", 11, 12),
    Sketcher.Constraint("Equal", 12, 13),
    Sketcher.Constraint("Equal", 13, 14),
    Sketcher.Constraint("Equal", 14, 15),
    Sketcher.Constraint("Equal", 15, 16),
    Sketcher.Constraint("Equal", 16, 17),
    Sketcher.Constraint("Equal", 17, 18),
    Sketcher.Constraint("Equal", 18, 19),
    Sketcher.Constraint("Equal", 19, 20),
    Sketcher.Constraint("Equal", 20, 21),
    Sketcher.Constraint("Equal", 21, 22),
    Sketcher.Constraint("Equal", 22, 23),
    Sketcher.Constraint("Equal", 23, 24),
    Sketcher.Constraint("Equal", 24, 25),
    Sketcher.Constraint("Equal", 25, 26),
    Sketcher.Constraint("Equal", 26, 27),
    Sketcher.Constraint("Equal", 27, 28),
    Sketcher.Constraint("Equal", 28, 29),
    Sketcher.Constraint("Equal", 29, 30),
    Sketcher.Constraint("Equal", 30, 31),
    Sketcher.Constraint("Equal", 31, 32),
    Sketcher.Constraint("Equal", 32, 33),
    Sketcher.Constraint("Equal", 33, 34),
    Sketcher.Constraint("Equal", 34, 35),
    Sketcher.Constraint("Equal", 35, 36),
    Sketcher.Constraint("Equal", 36, 37),
    Sketcher.Constraint("Equal", 37, 38),
    Sketcher.Constraint("Equal", 38, 39),
    Sketcher.Constraint("Equal", 39, 40),
    Sketcher.Constraint("Equal", 40, 41),
    Sketcher.Constraint("Equal", 41, 42),
    Sketcher.Constraint("Equal", 42, 43),
    Sketcher.Constraint("Equal", 43, 44),
    Sketcher.Constraint("Equal", 44, 45),
    Sketcher.Constraint("Equal", 45, 46),
    Sketcher.Constraint("Equal", 46, 47),
    Sketcher.Constraint("Horizontal", 0, 3, 1, 3),
    Sketcher.Constraint("Horizontal", 1, 3, 2, 3),
    Sketcher.Constraint("Horizontal", 2, 3, 3, 3),
    Sketcher.Constraint("Horizontal", 3, 3, 4, 3),
    Sketcher.Constraint("Horizontal", 4, 3, 5, 3),
    Sketcher.Constraint("Horizontal", 5, 3, 6, 3),
    Sketcher.Constraint("Horizontal", 6, 3, 7, 3),
    Sketcher.Constraint("Horizontal", 8, 3, 9, 3),
    Sketcher.Constraint("Horizontal", 9, 3, 10, 3),
    Sketcher.Constraint("Horizontal", 10, 3, 11, 3),
    Sketcher.Constraint("Horizontal", 11, 3, 12, 3),
    Sketcher.Constraint("Horizontal", 12, 3, 13, 3),
    Sketcher.Constraint("Horizontal", 13, 3, 14, 3),
    Sketcher.Constraint("Horizontal", 15, 3, 16, 3),
    Sketcher.Constraint("Horizontal", 16, 3, 17, 3),
    Sketcher.Constraint("Horizontal", 17, 3, 18, 3),
    Sketcher.Constraint("Horizontal", 18, 3, 19, 3),
    Sketcher.Constraint("Horizontal", 19, 3, 20, 3),
    Sketcher.Constraint("Horizontal", 20, 3, 21, 3),
    Sketcher.Constraint("Horizontal", 22, 3, 23, 3),
    Sketcher.Constraint("Horizontal", 23, 3, 24, 3),
    Sketcher.Constraint("Horizontal", 24, 3, 25, 3),
    Sketcher.Constraint("Horizontal", 25, 3, 26, 3),
    Sketcher.Constraint("Horizontal", 26, 3, 27, 3),
    Sketcher.Constraint("Horizontal", 27, 3, 28, 3),
    Sketcher.Constraint("Horizontal", 14, 3, 29, 3),
    Sketcher.Constraint("Horizontal", 21, 3, 30, 3),
    Sketcher.Constraint("Horizontal", 28, 3, 31, 3),
    Sketcher.Constraint("Horizontal", 32, 3, 33, 3),
    Sketcher.Constraint("Horizontal", 33, 3, 34, 3),
    Sketcher.Constraint("Horizontal", 34, 3, 35, 3),
    Sketcher.Constraint("Horizontal", 35, 3, 36, 3),
    Sketcher.Constraint("Horizontal", 36, 3, 37, 3),
    Sketcher.Constraint("Horizontal", 37, 3, 38, 3),
    Sketcher.Constraint("Horizontal", 38, 3, 39, 3),
    Sketcher.Constraint("Horizontal", 40, 3, 41, 3),
    Sketcher.Constraint("Horizontal", 41, 3, 42, 3),
    Sketcher.Constraint("Horizontal", 42, 3, 43, 3),
    Sketcher.Constraint("Horizontal", 43, 3, 44, 3),
    Sketcher.Constraint("Horizontal", 44, 3, 45, 3),
    Sketcher.Constraint("Horizontal", 45, 3, 46, 3),
    Sketcher.Constraint("Horizontal", 46, 3, 47, 3),
    Sketcher.Constraint("Vertical", 1, 3, 8, 3),
    Sketcher.Constraint("Vertical", 2, 3, 9, 3),
    Sketcher.Constraint("Vertical", 3, 3, 10, 3),
    Sketcher.Constraint("Vertical", 4, 3, 11, 3),
    Sketcher.Constraint("Vertical", 5, 3, 12, 3),
    Sketcher.Constraint("Vertical", 6, 3, 13, 3),
    Sketcher.Constraint("Vertical", 7, 3, 14, 3),
    Sketcher.Constraint("Vertical", 8, 3, 15, 3),
    Sketcher.Constraint("Vertical", 9, 3, 16, 3),
    Sketcher.Constraint("Vertical", 10, 3, 17, 3),
    Sketcher.Constraint("Vertical", 11, 3, 18, 3),
    Sketcher.Constraint("Vertical", 12, 3, 19, 3),
    Sketcher.Constraint("Vertical", 13, 3, 20, 3),
    Sketcher.Constraint("Vertical", 14, 3, 21, 3),
    Sketcher.Constraint("Vertical", 15, 3, 22, 3),
    Sketcher.Constraint("Vertical", 16, 3, 23, 3),
    Sketcher.Constraint("Vertical", 17, 3, 24, 3),
    Sketcher.Constraint("Vertical", 18, 3, 25, 3),
    Sketcher.Constraint("Vertical", 19, 3, 26, 3),
    Sketcher.Constraint("Vertical", 20, 3, 27, 3),
    Sketcher.Constraint("Vertical", 21, 3, 28, 3),
    Sketcher.Constraint("Vertical", 0, 3, 29, 3),
    Sketcher.Constraint("Vertical", 29, 3, 30, 3),
    Sketcher.Constraint("Vertical", 30, 3, 31, 3),
    Sketcher.Constraint("Vertical", 28, 3, 32, 3),
    Sketcher.Constraint("Vertical", 27, 3, 33, 3),
    Sketcher.Constraint("Vertical", 26, 3, 34, 3),
    Sketcher.Constraint("Vertical", 25, 3, 35, 3),
    Sketcher.Constraint("Vertical", 24, 3, 36, 3),
    Sketcher.Constraint("Vertical", 23, 3, 37, 3),
    Sketcher.Constraint("Vertical", 22, 3, 38, 3),
    Sketcher.Constraint("Vertical", 31, 3, 39, 3),
    Sketcher.Constraint("Vertical", 39, 3, 40, 3),
    Sketcher.Constraint("Vertical", 38, 3, 41, 3),
    Sketcher.Constraint("Vertical", 37, 3, 42, 3),
    Sketcher.Constraint("Vertical", 36, 3, 43, 3),
    Sketcher.Constraint("Vertical", 35, 3, 44, 3),
    Sketcher.Constraint("Vertical", 34, 3, 45, 3),
    Sketcher.Constraint("Vertical", 33, 3, 46, 3),
    Sketcher.Constraint("Vertical", 32, 3, 47, 3),
    Sketcher.Constraint("Diameter", 0, Q("4 mm")),
    Sketcher.Constraint("DistanceX", 0, 3, 1, 3, Q("15 mm")),
    Sketcher.Constraint("DistanceX", 1, 3, 2, 3, Q("15 mm")),
    Sketcher.Constraint("DistanceX", 2, 3, 3, 3, Q("15 mm")),
    Sketcher.Constraint("DistanceX", 3, 3, 4, 3, Q("15 mm")),
    Sketcher.Constraint("DistanceX", 4, 3, 5, 3, Q("15 mm")),
    Sketcher.Constraint("DistanceX", 5, 3, 6, 3, Q("15 mm")),
    Sketcher.Constraint("DistanceX", 6, 3, 7, 3, Q("15 mm")),
    Sketcher.Constraint("DistanceY", 8, 3, 1, 3, Q("15 mm")),
    Sketcher.Constraint("DistanceY", 15, 3, 8, 3, Q("15 mm")),
    Sketcher.Constraint("DistanceY", 22, 3, 15, 3, Q("15 mm")),
    Sketcher.Constraint("DistanceX", -1, 1, 0, 3, Q("12.5 mm")),
    Sketcher.Constraint("DistanceY", -1, 1, 0, 3, Q("112.5 mm")),
    Sketcher.Constraint("DistanceY", -1, 1, 32, 3, Q("169.633924 mm")),
    Sketcher.Constraint("DistanceY", -1, 1, 40, 3, Q("10.366076 mm")),
])
sketch13.setExpression("Constraints[129]", "Params.sketch13_diameter")
pocket5 = body.newObject("PartDesign::Pocket", "Pocket004")
pocket5.Profile = sketch13
pocket5.setExpression("Length", "Params.pocket5_length")
pocket5.Reversed = True
doc.recompute()

fillet = body.newObject("PartDesign::Fillet", "Fillet")
fillet.Base = (pocket5, edges_at(pocket5, [
    (0, 180, 3.5),
    (130, 180, 3.5),
    (130, 0, 3.5),
    (0, 0, 3.5),
]))
fillet.setExpression("Radius", "Params.fillet_radius")

doc.recompute()
